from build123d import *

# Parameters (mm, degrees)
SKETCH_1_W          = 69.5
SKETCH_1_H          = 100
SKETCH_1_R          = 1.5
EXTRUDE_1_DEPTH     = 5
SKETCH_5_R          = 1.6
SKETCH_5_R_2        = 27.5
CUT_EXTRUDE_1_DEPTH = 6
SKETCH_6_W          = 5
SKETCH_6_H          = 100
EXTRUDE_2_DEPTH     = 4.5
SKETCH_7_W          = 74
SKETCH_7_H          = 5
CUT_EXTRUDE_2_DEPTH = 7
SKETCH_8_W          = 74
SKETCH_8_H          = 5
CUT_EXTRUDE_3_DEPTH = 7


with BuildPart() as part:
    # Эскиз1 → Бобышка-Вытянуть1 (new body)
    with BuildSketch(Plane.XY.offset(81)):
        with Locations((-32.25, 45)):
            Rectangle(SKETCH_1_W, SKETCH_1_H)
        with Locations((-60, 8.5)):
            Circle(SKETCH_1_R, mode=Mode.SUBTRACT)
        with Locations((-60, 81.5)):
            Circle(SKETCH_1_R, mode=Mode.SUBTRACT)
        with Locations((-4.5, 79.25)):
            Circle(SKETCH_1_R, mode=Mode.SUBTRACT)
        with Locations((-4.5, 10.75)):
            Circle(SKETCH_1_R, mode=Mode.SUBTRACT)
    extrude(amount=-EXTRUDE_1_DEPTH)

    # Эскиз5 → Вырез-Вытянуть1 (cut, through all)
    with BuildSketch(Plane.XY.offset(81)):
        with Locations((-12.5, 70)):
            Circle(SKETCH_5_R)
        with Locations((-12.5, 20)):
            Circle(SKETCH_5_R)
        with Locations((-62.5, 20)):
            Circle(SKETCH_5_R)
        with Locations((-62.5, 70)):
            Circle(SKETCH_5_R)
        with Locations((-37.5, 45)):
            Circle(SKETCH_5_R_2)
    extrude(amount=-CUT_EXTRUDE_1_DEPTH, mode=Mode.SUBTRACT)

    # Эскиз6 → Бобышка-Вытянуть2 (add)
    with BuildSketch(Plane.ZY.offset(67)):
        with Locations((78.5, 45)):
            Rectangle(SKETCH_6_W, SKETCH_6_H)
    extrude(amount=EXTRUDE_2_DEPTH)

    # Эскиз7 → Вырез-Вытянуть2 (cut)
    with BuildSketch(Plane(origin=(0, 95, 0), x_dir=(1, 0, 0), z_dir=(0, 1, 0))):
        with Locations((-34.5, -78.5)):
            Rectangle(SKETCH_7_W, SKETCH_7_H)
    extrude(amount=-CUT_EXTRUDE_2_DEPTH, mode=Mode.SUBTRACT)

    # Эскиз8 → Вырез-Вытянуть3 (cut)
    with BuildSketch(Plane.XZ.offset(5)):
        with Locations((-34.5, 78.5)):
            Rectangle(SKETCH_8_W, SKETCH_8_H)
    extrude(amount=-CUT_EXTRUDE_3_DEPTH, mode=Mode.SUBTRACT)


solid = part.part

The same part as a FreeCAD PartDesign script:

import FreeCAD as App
import Part
import Sketcher

V = App.Vector


def add_polygon(sketch, points):
    """Adds a closed chain of lines whose ends are joined by coincident constraints."""
    first, n = sketch.GeometryCount, len(points)
    for a, b in zip(points, points[1:] + points[:1]):
        sketch.addGeometry(Part.LineSegment(App.Vector(*a, 0), App.Vector(*b, 0)), False)
    for i in range(n):
        sketch.addConstraint(Sketcher.Constraint("Coincident", first + i, 2, first + (i + 1) % n, 1))

doc = App.newDocument("Part")
body = doc.addObject("PartDesign::Body", "Body")

# Sketch on XY plane
sketch1 = body.newObject("Sketcher::SketchObject", "Sketch")
sketch1.AttachmentSupport = (doc.getObject("XY_Plane"), [""])
sketch1.MapMode = "FlatFace"
sketch1.AttachmentOffset = App.Placement(V(0, 0, 81), App.Rotation())
add_polygon(sketch1, [(-67, 95), (-67, -5), (2.5, -5), (2.5, 95)])  # lines 0-3
sketch1.addGeometry(Part.Circle(V(-60, 8.5, 0), V(0, 0, 1), 1.5), False)  # 4
sketch1.addGeometry(Part.Circle(V(-4.5, 10.8, 0), V(0, 0, 1), 1.5), False)  # 5
sketch1.addGeometry(Part.Circle(V(-60, 81.5, 0), V(0, 0, 1), 1.5), False)  # 6
sketch1.addGeometry(Part.Circle(V(-4.5, 79.2, 0), V(0, 0, 1), 1.5), False)  # 7
sketch1.addConstraint([
    Sketcher.Constraint("Vertical", 0),
    Sketcher.Constraint("Horizontal", 1),
    Sketcher.Constraint("Vertical", 2),
    Sketcher.Constraint("Horizontal", 3),
    Sketcher.Constraint("Equal", 4, 5),
    Sketcher.Constraint("Equal", 5, 6),
    Sketcher.Constraint("Equal", 6, 7),
    Sketcher.Constraint("Vertical", 4, 3, 6, 3),
    Sketcher.Constraint("Vertical", 5, 3, 7, 3),
    Sketcher.Constraint("Diameter", 4, 3.0),
    Sketcher.Constraint("DistanceY", 0, 2, 0, 1, 100.0),
    Sketcher.Constraint("DistanceX", 1, 1, 1, 2, 69.5),
    Sketcher.Constraint("DistanceX", 4, 3, -1, 1, 60.0),
    Sketcher.Constraint("DistanceX", 0, 2, -1, 1, 67.0),
    Sketcher.Constraint("DistanceY", 0, 2, -1, 1, 5.0),
    Sketcher.Constraint("DistanceY", 4, 3, 6, 3, 73.0),
    Sketcher.Constraint("DistanceX", 5, 3, 1, 2, 7.0),
    Sketcher.Constraint("DistanceY", -1, 1, 4, 3, 8.5),
    Sketcher.Constraint("DistanceY", 5, 3, 7, 3, 68.5),
    Sketcher.Constraint("DistanceY", -1, 1, 5, 3, 10.75),
])
pad1 = body.newObject("PartDesign::Pad", "Pad")
pad1.Profile = sketch1
pad1.Length = 5
pad1.Reversed = True

# Sketch on XY plane
sketch2 = body.newObject("Sketcher::SketchObject", "Sketch001")
sketch2.AttachmentSupport = (doc.getObject("XY_Plane"), [""])
sketch2.MapMode = "FlatFace"
sketch2.AttachmentOffset = App.Placement(V(0, 0, 81), App.Rotation())
sketch2.addGeometry([
    Part.Circle(V(-12.5, 70, 0), V(0, 0, 1), 1.6),  # 0
    Part.Circle(V(-12.5, 20, 0), V(0, 0, 1), 1.6),  # 1
    Part.Circle(V(-62.5, 20, 0), V(0, 0, 1), 1.6),  # 2
    Part.Circle(V(-62.5, 70, 0), V(0, 0, 1), 1.6),  # 3
    Part.Circle(V(-37.5, 45, 0), V(0, 0, 1), 27.5),  # 4
], False)
sketch2.addConstraint([
    Sketcher.Constraint("Equal", 0, 1),
    Sketcher.Constraint("Equal", 1, 2),
    Sketcher.Constraint("Equal", 2, 3),
    Sketcher.Constraint("Horizontal", 1, 3, 2, 3),
    Sketcher.Constraint("Horizontal", 0, 3, 3, 3),
    Sketcher.Constraint("Vertical", 0, 3, 1, 3),
    Sketcher.Constraint("Vertical", 2, 3, 3, 3),
    Sketcher.Constraint("Diameter", 4, 55.0),
    Sketcher.Constraint("Diameter", 0, 3.2),
    Sketcher.Constraint("DistanceY", -1, 1, 0, 3, 70.0),
    Sketcher.Constraint("DistanceY", -1, 1, 1, 3, 20.0),
    Sketcher.Constraint("DistanceY", -1, 1, 4, 3, 45.0),
    Sketcher.Constraint("DistanceX", 2, 3, 1, 3, 50.0),
    Sketcher.Constraint("DistanceX", 4, 3, 0, 3, 25.0),
    Sketcher.Constraint("DistanceX", 0, 3, -1, 1, 12.5),
])
pocket1 = body.newObject("PartDesign::Pocket", "Pocket")
pocket1.Profile = sketch2
pocket1.Type = "ThroughAll"

# Sketch on YZ plane
sketch3 = body.newObject("Sketcher::SketchObject", "Sketch002")
sketch3.AttachmentSupport = (doc.getObject("YZ_Plane"), [""])
sketch3.MapMode = "FlatFace"
sketch3.AttachmentOffset = App.Placement(V(0, 0, -67), App.Rotation())
add_polygon(sketch3, [(95, 76), (-5, 76), (-5, 81), (95, 81)])  # lines 0-3
sketch3.addConstraint([
    Sketcher.Constraint("Horizontal", 0),
    Sketcher.Constraint("Vertical", 1),
    Sketcher.Constraint("Horizontal", 2),
    Sketcher.Constraint("Vertical", 3),
    Sketcher.Constraint("DistanceX", 0, 2, 0, 1, 100.0),
    Sketcher.Constraint("DistanceY", 1, 1, 1, 2, 5.0),
    Sketcher.Constraint("DistanceX", 0, 2, -1, 1, 5.0),
    Sketcher.Constraint("DistanceY", -1, 1, 0, 2, 76.0),
])
pad2 = body.newObject("PartDesign::Pad", "Pad001")
pad2.Profile = sketch3
pad2.Length = 4.5
pad2.Reversed = True

# Sketch on XZ plane
sketch4 = body.newObject("Sketcher::SketchObject", "Sketch003")
sketch4.AttachmentSupport = (doc.getObject("XZ_Plane"), [""])
sketch4.MapMode = "FlatFace"
sketch4.AttachmentOffset = App.Placement(V(0, 0, -95), App.Rotation())
add_polygon(sketch4, [(-72, 76), (-72, 81), (2, 81), (2, 76)])  # lines 0-3
sketch4.addConstraint([
    Sketcher.Constraint("Vertical", 0),
    Sketcher.Constraint("Horizontal", 1),
    Sketcher.Constraint("Vertical", 2),
    Sketcher.Constraint("Horizontal", 3),
    Sketcher.Constraint("DistanceX", 1, 1, 1, 2, 74.0),
    Sketcher.Constraint("DistanceY", 0, 1, 0, 2, 5.0),
    Sketcher.Constraint("DistanceY", -1, 1, 0, 2, 81.0),
    Sketcher.Constraint("DistanceX", 0, 2, -1, 1, 71.5),
])
pocket2 = body.newObject("PartDesign::Pocket", "Pocket001")
pocket2.Profile = sketch4
pocket2.Length = 7
pocket2.Reversed = True

# Sketch on XZ plane
sketch5 = body.newObject("Sketcher::SketchObject", "Sketch004")
sketch5.AttachmentSupport = (doc.getObject("XZ_Plane"), [""])
sketch5.MapMode = "FlatFace"
sketch5.AttachmentOffset = App.Placement(V(0, 0, 5), App.Rotation())
add_polygon(sketch5, [(-72, 81), (-72, 76), (2, 76), (2, 81)])  # lines 0-3
sketch5.addConstraint([
    Sketcher.Constraint("Vertical", 0),
    Sketcher.Constraint("Horizontal", 1),
    Sketcher.Constraint("Vertical", 2),
    Sketcher.Constraint("Horizontal", 3),
    Sketcher.Constraint("DistanceX", 1, 1, 1, 2, 74.0),
    Sketcher.Constraint("DistanceY", 0, 2, 0, 1, 5.0),
    Sketcher.Constraint("DistanceY", -1, 1, 0, 2, 76.0),
    Sketcher.Constraint("DistanceX", 0, 2, -1, 1, 71.5),
])
pocket3 = body.newObject("PartDesign::Pocket", "Pocket002")
pocket3.Profile = sketch5
pocket3.Length = 7

doc.recompute()
